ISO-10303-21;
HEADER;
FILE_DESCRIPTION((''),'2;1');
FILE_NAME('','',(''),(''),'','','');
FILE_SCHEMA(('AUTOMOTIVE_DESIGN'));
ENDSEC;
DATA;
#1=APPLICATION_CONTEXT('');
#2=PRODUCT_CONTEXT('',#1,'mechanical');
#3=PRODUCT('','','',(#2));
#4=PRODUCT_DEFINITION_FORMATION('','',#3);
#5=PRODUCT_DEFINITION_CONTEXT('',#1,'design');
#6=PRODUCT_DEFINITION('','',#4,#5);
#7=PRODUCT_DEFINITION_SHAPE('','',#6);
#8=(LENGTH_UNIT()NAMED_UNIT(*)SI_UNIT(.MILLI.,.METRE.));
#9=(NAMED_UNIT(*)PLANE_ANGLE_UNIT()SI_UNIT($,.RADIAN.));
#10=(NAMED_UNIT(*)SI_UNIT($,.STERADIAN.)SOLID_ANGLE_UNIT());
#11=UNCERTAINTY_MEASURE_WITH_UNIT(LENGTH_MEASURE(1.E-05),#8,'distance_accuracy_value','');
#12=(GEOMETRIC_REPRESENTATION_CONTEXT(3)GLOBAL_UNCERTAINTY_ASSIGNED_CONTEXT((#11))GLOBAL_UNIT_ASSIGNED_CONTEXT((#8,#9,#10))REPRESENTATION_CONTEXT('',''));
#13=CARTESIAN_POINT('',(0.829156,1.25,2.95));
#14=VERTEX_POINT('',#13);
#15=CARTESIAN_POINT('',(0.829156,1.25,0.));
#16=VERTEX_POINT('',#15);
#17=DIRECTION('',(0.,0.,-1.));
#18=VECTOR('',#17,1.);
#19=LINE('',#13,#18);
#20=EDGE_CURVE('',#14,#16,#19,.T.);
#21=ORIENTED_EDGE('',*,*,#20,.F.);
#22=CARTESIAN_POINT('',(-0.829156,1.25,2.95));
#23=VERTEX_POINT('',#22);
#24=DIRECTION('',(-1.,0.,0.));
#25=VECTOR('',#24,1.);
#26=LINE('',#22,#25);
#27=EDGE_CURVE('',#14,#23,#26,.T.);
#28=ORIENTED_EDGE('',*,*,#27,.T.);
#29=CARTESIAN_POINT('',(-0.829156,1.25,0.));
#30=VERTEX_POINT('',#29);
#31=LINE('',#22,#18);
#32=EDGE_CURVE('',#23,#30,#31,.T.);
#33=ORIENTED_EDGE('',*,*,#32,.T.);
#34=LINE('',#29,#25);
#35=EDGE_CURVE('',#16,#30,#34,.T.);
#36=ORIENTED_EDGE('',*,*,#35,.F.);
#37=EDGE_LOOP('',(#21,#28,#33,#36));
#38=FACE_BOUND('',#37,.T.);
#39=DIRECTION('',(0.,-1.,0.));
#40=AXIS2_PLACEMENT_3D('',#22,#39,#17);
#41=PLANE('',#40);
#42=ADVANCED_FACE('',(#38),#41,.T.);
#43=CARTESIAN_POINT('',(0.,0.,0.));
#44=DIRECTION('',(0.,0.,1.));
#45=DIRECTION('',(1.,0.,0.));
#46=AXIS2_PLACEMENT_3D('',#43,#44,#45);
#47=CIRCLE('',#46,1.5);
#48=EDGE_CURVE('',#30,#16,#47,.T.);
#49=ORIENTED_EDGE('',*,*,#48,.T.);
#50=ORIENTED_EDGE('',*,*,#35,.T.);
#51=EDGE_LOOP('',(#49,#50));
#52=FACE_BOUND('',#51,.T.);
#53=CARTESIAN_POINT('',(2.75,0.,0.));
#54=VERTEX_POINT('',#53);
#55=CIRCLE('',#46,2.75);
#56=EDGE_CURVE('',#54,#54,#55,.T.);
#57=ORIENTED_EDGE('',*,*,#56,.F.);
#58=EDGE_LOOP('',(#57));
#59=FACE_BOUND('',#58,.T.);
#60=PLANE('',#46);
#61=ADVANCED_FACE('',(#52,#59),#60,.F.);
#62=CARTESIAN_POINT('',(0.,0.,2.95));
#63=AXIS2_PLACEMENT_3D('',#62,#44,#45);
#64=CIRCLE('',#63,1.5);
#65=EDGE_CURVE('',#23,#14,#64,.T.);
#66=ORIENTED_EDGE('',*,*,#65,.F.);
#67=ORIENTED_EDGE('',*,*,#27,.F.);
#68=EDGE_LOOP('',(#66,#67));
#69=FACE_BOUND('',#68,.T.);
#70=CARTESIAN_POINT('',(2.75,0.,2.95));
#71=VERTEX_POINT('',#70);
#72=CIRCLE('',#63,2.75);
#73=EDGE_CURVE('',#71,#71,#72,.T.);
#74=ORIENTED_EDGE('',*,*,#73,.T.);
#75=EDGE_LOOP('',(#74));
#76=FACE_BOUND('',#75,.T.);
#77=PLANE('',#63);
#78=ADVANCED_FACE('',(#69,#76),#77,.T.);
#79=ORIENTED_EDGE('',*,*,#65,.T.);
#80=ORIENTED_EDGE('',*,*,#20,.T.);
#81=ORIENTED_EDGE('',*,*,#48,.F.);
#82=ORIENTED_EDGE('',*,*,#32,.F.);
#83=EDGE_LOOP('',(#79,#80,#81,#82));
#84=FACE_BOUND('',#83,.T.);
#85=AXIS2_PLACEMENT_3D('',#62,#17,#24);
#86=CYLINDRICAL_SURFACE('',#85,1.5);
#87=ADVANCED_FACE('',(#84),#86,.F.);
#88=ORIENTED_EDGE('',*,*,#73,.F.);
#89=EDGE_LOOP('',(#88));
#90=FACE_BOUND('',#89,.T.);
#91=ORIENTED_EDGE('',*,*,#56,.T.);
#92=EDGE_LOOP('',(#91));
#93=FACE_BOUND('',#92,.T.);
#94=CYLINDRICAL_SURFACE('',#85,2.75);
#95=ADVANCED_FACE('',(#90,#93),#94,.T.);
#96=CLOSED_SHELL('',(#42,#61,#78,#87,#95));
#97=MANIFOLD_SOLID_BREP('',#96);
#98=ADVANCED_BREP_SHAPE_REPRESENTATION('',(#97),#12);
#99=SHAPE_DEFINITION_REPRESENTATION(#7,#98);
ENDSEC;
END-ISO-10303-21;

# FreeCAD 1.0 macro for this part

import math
import FreeCAD as App
import Part
import Sketcher
from FreeCAD import Vector

doc = App.newDocument("Part")
params = doc.addObject("Spreadsheet::Sheet", "Params")
for row, (alias, value) in enumerate([
    ("sketch1_diameter", "5.5 mm"),
    ("sketch1_radius", "1.5 mm"),
    ("pad1_length", "2.95 mm"),
], start=1):
    params.set(f"A{row}", alias)
    params.set(f"B{row}", "=" + value)
    params.setAlias(f"B{row}", alias)

body = doc.addObject("PartDesign::Body", "Body")

# Sketch on XY plane
sketch1 = body.newObject("Sketcher::SketchObject", "Sketch")
sketch1.AttachmentSupport = (doc.getObject("XY_Plane"), [""])
sketch1.MapMode = "FlatFace"
sketch1.addGeometry([
    Part.Circle(Vector(0, 0, 0), Vector(0, 0, 1), 2.8),
    Part.ArcOfCircle(Part.Circle(Vector(0, 0, 0), Vector(0, 0, 1), 1.5), math.radians(124), math.radians(416)),
    Part.LineSegment(Vector(-0.8, 1.2, 0), Vector(0.8, 1.2, 0)),
], False)
sketch1.addConstraint([
    Sketcher.Constraint("Coincident", 1, 1, 2, 1),
    Sketcher.Constraint("Coincident", 2, 2, 1, 2),
    Sketcher.Constraint("Horizontal", 2),
    Sketcher.Constraint("Coincident", 0, 3, -1, 1),
    Sketcher.Constraint("Coincident", 1, 3, -1, 1),
    Sketcher.Constraint("Diameter", 0, 5.5),
    Sketcher.Constraint("Radius", 1, 1.5),
    Sketcher.Constraint("DistanceY", -1, 1, 1, 1, 1.25),
])
sketch1.setExpression("Constraints[5]", "Params.sketch1_diameter")
sketch1.setExpression("Constraints[6]", "Params.sketch1_radius")
pad1 = body.newObject("PartDesign::Pad", "Pad")
pad1.Profile = sketch1
pad1.setExpression("Length", "Params.pad1_length")

doc.recompute()
